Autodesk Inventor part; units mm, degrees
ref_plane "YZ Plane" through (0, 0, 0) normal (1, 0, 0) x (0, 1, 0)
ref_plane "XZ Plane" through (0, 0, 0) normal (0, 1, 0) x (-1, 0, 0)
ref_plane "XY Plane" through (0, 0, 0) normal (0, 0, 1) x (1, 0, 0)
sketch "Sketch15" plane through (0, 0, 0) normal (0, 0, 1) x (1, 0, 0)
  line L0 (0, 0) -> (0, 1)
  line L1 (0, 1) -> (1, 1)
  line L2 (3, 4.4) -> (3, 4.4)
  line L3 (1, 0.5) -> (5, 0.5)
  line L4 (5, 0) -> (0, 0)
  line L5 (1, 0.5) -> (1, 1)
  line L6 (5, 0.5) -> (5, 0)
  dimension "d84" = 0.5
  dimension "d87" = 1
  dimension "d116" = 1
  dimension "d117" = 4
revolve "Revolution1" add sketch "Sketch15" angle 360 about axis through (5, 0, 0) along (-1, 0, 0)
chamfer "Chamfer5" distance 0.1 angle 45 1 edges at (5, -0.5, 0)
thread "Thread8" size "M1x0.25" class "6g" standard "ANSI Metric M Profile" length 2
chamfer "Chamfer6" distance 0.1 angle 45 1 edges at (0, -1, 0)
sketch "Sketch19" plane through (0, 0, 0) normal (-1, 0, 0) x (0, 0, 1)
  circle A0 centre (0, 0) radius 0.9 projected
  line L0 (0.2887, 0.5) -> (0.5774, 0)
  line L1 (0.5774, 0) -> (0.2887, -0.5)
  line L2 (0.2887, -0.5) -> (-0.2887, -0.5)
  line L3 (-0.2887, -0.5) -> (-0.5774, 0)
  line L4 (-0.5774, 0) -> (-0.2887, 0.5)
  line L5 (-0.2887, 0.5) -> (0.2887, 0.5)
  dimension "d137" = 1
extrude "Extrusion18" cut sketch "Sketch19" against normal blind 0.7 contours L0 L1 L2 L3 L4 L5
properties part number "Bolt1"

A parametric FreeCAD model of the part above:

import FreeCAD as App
import Part
import Sketcher
from FreeCAD import Vector
Q = App.Units.Quantity


def edges_at(feature, points):
    """Names of the edges that pass closest to the given points."""
    edges = feature.Shape.Edges
    near = lambda p: min(range(len(edges)), key=lambda i: edges[i].distToShape(Part.Vertex(*p))[0])
    return sorted({f"Edge{near(p) + 1}" for p in points})

doc = App.newDocument("Part")
params = doc.addObject("Spreadsheet::Sheet", "Params")
for row, (alias, value) in enumerate([
    ("sketch1_width", "4 mm"),
    ("sketch1_width2", "1 mm"),
    ("revolution_angle", "360 deg"),
    ("chamfer_size", "0.1 mm"),
    ("chamfer2_size", "0.1 mm"),
    ("pocket1_length", "0.7 mm"),
], start=1):
    params.set(f"A{row}", alias)
    params.set(f"B{row}", "=" + value)
    params.setAlias(f"B{row}", alias)

body = doc.addObject("PartDesign::Body", "Body")

sketch1 = doc.addObject("Sketcher::SketchObject", "Sketch")
body.addObject(sketch1)
sketch1.AttachmentSupport = (doc.XY_Plane, [""])
sketch1.MapMode = "FlatFace"
sketch1.addGeometry(Part.LineSegment(Vector(0, 1, 0), Vector(0, 0, 0)), False)
sketch1.addGeometry(Part.LineSegment(Vector(0, 0, 0), Vector(5, 0, 0)), False)
sketch1.addGeometry(Part.LineSegment(Vector(5, 0, 0), Vector(5, 0.5, 0)), False)
sketch1.addGeometry(Part.LineSegment(Vector(5, 0.5, 0), Vector(1, 0.5, 0)), False)
sketch1.addGeometry(Part.LineSegment(Vector(1, 0.5, 0), Vector(1, 1, 0)), False)
sketch1.addGeometry(Part.LineSegment(Vector(1, 1, 0), Vector(0, 1, 0)), False)
sketch1.addConstraint(Sketcher.Constraint("Coincident", 0, 2, 1, 1))
sketch1.addConstraint(Sketcher.Constraint("Coincident", 1, 2, 2, 1))
sketch1.addConstraint(Sketcher.Constraint("Coincident", 2, 2, 3, 1))
sketch1.addConstraint(Sketcher.Constraint("Coincident", 3, 2, 4, 1))
sketch1.addConstraint(Sketcher.Constraint("Coincident", 4, 2, 5, 1))
sketch1.addConstraint(Sketcher.Constraint("Coincident", 5, 2, 0, 1))
sketch1.addConstraint(Sketcher.Constraint("Vertical", 0))
sketch1.addConstraint(Sketcher.Constraint("Horizontal", 1))
sketch1.addConstraint(Sketcher.Constraint("Vertical", 2))
sketch1.addConstraint(Sketcher.Constraint("Horizontal", 3))
sketch1.addConstraint(Sketcher.Constraint("Vertical", 4))
sketch1.addConstraint(Sketcher.Constraint("Horizontal", 5))
sketch1.addConstraint(Sketcher.Constraint("Coincident", 0, 2, -1, 1))
sketch1.addConstraint(Sketcher.Constraint("Equal", 5, 0))
sketch1.addConstraint(Sketcher.Constraint("Equal", 2, 4))
sketch1.addConstraint(Sketcher.Constraint("DistanceX", 3, 2, 3, 1, Q("4 mm")))
sketch1.addConstraint(Sketcher.Constraint("DistanceX", 5, 2, 5, 1, Q("1 mm")))
sketch1.setExpression("Constraints[15]", "Params.sketch1_width")
sketch1.setExpression("Constraints[16]", "Params.sketch1_width2")
revolution = doc.addObject("PartDesign::Revolution", "Revolution")
body.addObject(revolution)
revolution.Profile = sketch1
revolution.ReferenceAxis = (sketch1, ["H_Axis"])
revolution.setExpression("Angle", "Params.revolution_angle")
doc.recompute()

chamfer = doc.addObject("PartDesign::Chamfer", "Chamfer")
body.addObject(chamfer)
chamfer.Base = (revolution, edges_at(revolution, [(5, -0.5, 0)]))
chamfer.setExpression("Size", "Params.chamfer_size")
doc.recompute()

chamfer2 = doc.addObject("PartDesign::Chamfer", "Chamfer001")
body.addObject(chamfer2)
chamfer2.Base = (chamfer, edges_at(chamfer, [(0, -1, 0)]))
chamfer2.setExpression("Size", "Params.chamfer2_size")

sketch2 = doc.addObject("Sketcher::SketchObject", "Sketch001")
body.addObject(sketch2)
sketch2.AttachmentSupport = (doc.YZ_Plane, [""])
sketch2.MapMode = "FlatFace"
sketch2.addGeometry(Part.LineSegment(Vector(0, 0.6, 0), Vector(0.5, 0.3, 0)), False)
sketch2.addGeometry(Part.LineSegment(Vector(0.5, 0.3, 0), Vector(0.5, -0.3, 0)), False)
sketch2.addGeometry(Part.LineSegment(Vector(0.5, -0.3, 0), Vector(0, -0.6, 0)), False)
sketch2.addGeometry(Part.LineSegment(Vector(0, -0.6, 0), Vector(-0.5, -0.3, 0)), False)
sketch2.addGeometry(Part.LineSegment(Vector(-0.5, -0.3, 0), Vector(-0.5, 0.3, 0)), False)
sketch2.addGeometry(Part.LineSegment(Vector(-0.5, 0.3, 0), Vector(0, 0.6, 0)), False)
sketch2.addConstraint(Sketcher.Constraint("Coincident", 0, 2, 1, 1))
sketch2.addConstraint(Sketcher.Constraint("Coincident", 1, 2, 2, 1))
sketch2.addConstraint(Sketcher.Constraint("Coincident", 2, 2, 3, 1))
sketch2.addConstraint(Sketcher.Constraint("Coincident", 3, 2, 4, 1))
sketch2.addConstraint(Sketcher.Constraint("Coincident", 4, 2, 5, 1))
sketch2.addConstraint(Sketcher.Constraint("Coincident", 5, 2, 0, 1))
sketch2.addConstraint(Sketcher.Constraint("Vertical", 1))
sketch2.addConstraint(Sketcher.Constraint("Vertical", 4))
sketch2.addConstraint(Sketcher.Constraint("Symmetric", 0, 2, 3, 2, -1, 1))
sketch2.addConstraint(Sketcher.Constraint("Symmetric", 2, 2, 5, 2, -1, 1))
sketch2.addConstraint(Sketcher.Constraint("PointOnObject", 2, 2, -2))
sketch2.addConstraint(Sketcher.Constraint("Parallel", 2, 5))
sketch2.addConstraint(Sketcher.Constraint("Horizontal", 1, 2, 3, 2))
sketch2.addConstraint(Sketcher.Constraint("DistanceX", 3, 2, 1, 2, Q("1 mm")))
sketch2.addConstraint(Sketcher.Constraint("DistanceY", 1, 2, 1, 1, Q("0.5774 mm")))
sketch2.addConstraint(Sketcher.Constraint("DistanceY", 2, 2, 0, 2, Q("0.866 mm")))
pocket1 = doc.addObject("PartDesign::Pocket", "Pocket")
body.addObject(pocket1)
pocket1.Profile = sketch2
pocket1.setExpression("Length", "Params.pocket1_length")
pocket1.Reversed = True

doc.recompute()
